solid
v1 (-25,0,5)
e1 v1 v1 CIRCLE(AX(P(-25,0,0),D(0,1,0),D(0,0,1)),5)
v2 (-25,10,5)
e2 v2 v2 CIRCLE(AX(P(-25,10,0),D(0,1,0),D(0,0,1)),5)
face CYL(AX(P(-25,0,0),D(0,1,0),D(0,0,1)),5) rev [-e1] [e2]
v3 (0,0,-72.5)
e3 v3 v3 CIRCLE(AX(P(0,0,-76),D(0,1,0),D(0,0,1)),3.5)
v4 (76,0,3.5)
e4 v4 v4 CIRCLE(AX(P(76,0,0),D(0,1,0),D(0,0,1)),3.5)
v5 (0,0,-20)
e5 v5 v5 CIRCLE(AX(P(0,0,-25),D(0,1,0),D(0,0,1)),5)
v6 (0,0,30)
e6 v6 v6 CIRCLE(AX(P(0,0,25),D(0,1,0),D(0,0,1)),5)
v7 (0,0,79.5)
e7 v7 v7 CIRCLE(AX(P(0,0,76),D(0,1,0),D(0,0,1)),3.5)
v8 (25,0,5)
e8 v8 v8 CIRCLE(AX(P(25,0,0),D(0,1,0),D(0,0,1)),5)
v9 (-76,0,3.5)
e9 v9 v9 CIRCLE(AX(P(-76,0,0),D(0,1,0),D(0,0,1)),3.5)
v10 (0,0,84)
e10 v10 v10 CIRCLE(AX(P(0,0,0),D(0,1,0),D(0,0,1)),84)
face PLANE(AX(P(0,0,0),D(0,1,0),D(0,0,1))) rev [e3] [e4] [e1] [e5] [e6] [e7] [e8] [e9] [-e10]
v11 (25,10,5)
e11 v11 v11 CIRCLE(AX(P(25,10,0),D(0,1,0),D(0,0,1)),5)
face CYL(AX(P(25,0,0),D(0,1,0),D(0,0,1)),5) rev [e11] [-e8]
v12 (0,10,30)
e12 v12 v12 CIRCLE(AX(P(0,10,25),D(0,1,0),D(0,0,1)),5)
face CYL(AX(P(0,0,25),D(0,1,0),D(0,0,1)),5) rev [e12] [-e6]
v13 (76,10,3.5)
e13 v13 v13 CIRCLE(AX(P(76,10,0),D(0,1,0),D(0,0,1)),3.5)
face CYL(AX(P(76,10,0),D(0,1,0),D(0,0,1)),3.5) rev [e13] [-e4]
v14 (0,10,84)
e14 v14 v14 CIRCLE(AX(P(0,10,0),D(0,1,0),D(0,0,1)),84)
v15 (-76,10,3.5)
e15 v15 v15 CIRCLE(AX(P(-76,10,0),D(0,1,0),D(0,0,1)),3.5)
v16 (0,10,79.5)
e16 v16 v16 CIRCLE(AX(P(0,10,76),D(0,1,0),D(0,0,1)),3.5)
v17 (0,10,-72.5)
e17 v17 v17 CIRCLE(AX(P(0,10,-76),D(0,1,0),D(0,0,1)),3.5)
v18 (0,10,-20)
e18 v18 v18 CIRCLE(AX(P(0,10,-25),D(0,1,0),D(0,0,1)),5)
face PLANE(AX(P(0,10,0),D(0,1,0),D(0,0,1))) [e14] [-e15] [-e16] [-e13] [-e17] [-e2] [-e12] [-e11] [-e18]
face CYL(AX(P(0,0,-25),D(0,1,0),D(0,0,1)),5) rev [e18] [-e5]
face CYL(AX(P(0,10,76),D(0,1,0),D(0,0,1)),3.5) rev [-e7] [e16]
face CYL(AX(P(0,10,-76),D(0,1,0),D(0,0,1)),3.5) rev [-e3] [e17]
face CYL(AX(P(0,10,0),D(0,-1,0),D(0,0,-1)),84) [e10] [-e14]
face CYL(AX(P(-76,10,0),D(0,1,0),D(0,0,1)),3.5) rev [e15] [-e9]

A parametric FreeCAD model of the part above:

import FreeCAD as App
import Part
import Sketcher
from FreeCAD import Vector

doc = App.newDocument("Part")
body = doc.addObject("PartDesign::Body", "Body")

sketch1 = body.newObject("Sketcher::SketchObject", "Sketch")
sketch1.AttachmentSupport = (doc.getObject("XZ_Plane"), [""])
sketch1.MapMode = "FlatFace"
sketch1.addGeometry(Part.Circle(Vector(0, 0, 0), Vector(0, 0, 1), 84), False)
sketch1.addConstraint([
    Sketcher.Constraint("Coincident", 0, 3, -1, 1),
    Sketcher.Constraint("Diameter", 0, 168.0),
])
pad1 = body.newObject("PartDesign::Pad", "Pad")
pad1.Profile = sketch1
pad1.Length = 10
pad1.Reversed = True

sketch2 = body.newObject("Sketcher::SketchObject", "Sketch001")
sketch2.AttachmentSupport = (doc.getObject("XZ_Plane"), [""])
sketch2.MapMode = "FlatFace"
sketch2.AttachmentOffset = App.Placement(Vector(0, 0, -10), App.Rotation())
sketch2.addGeometry([
    Part.Circle(Vector(0, -76, 0), Vector(0, 0, 1), 3.5),
    Part.Circle(Vector(-76, 0, 0), Vector(0, 0, 1), 3.5),
    Part.Circle(Vector(0, 76, 0), Vector(0, 0, 1), 3.5),
    Part.Circle(Vector(76, 0, 0), Vector(0, 0, 1), 3.5),
], False)
sketch2.addConstraint([
    Sketcher.Constraint("Equal", 0, 1),
    Sketcher.Constraint("Equal", 1, 2),
    Sketcher.Constraint("Equal", 2, 3),
    Sketcher.Constraint("Symmetric", 0, 3, 2, 3, -1, 1),
    Sketcher.Constraint("Symmetric", 1, 3, 3, 3, -1, 1),
    Sketcher.Constraint("PointOnObject", 0, 3, -2),
    Sketcher.Constraint("PointOnObject", 1, 3, -1),
    Sketcher.Constraint("Diameter", 0, 7.0),
    Sketcher.Constraint("DistanceY", 0, 3, -1, 1, 76.0),
    Sketcher.Constraint("DistanceX", 1, 3, -1, 1, 76.0),
])
doc.recompute()
hole = body.newObject("PartDesign::Hole", "Hole")
hole.Profile = sketch2
hole.ThreadType = "None"
hole.Diameter = 7
hole.DepthType = "ThroughAll"
hole.Reversed = True

sketch3 = body.newObject("Sketcher::SketchObject", "Sketch002")
sketch3.AttachmentSupport = (doc.getObject("XZ_Plane"), [""])
sketch3.MapMode = "FlatFace"
sketch3.AttachmentOffset = App.Placement(Vector(0, 0, -10), App.Rotation())
sketch3.addGeometry([
    Part.Circle(Vector(0, -25, 0), Vector(0, 0, 1), 5),
    Part.Circle(Vector(25, 0, 0), Vector(0, 0, 1), 5),
    Part.Circle(Vector(-25, 0, 0), Vector(0, 0, 1), 5),
    Part.Circle(Vector(0, 25, 0), Vector(0, 0, 1), 5),
], False)
sketch3.addConstraint([
    Sketcher.Constraint("Equal", 0, 1),
    Sketcher.Constraint("Equal", 1, 2),
    Sketcher.Constraint("Equal", 2, 3),
    Sketcher.Constraint("Symmetric", 1, 3, 2, 3, -1, 1),
    Sketcher.Constraint("Symmetric", 0, 3, 3, 3, -1, 1),
    Sketcher.Constraint("PointOnObject", 0, 3, -2),
    Sketcher.Constraint("PointOnObject", 1, 3, -1),
    Sketcher.Constraint("Diameter", 0, 10.0),
    Sketcher.Constraint("DistanceY", 0, 3, -1, 1, 25.0),
    Sketcher.Constraint("DistanceX", -1, 1, 1, 3, 25.0),
])
pocket1 = body.newObject("PartDesign::Pocket", "Pocket")
pocket1.Profile = sketch3
pocket1.Length = 10
pocket1.Reversed = True

doc.recompute()
